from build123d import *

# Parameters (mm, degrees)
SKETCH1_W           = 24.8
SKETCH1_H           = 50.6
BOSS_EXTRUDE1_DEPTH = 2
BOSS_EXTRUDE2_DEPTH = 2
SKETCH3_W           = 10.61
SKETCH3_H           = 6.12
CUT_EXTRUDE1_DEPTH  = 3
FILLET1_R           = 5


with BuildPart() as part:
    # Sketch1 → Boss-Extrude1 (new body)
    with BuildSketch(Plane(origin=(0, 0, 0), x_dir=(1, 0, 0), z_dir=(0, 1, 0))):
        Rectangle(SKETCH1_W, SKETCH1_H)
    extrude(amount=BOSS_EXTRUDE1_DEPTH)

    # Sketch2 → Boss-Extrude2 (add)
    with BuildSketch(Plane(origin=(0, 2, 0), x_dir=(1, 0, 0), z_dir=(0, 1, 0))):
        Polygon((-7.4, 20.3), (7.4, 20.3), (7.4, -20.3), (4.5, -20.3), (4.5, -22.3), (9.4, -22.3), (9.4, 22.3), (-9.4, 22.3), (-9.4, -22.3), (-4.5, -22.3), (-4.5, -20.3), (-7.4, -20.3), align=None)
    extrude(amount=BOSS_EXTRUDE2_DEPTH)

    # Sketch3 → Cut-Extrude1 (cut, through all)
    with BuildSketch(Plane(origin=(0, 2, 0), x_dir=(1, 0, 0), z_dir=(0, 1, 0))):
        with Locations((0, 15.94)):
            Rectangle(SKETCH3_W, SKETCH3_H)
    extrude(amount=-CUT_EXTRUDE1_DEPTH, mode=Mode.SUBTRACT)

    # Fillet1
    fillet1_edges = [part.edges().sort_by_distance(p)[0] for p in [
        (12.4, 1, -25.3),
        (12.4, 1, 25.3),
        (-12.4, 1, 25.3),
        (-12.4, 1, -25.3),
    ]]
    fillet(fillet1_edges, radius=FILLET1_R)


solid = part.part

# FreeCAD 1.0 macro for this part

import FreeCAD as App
import Part
import Sketcher
from FreeCAD import Vector
Q = App.Units.Quantity


def edges_at(feature, points):
    """Names of the edges that pass closest to the given points."""
    edges = feature.Shape.Edges
    near = lambda p: min(range(len(edges)), key=lambda i: edges[i].distToShape(Part.Vertex(*p))[0])
    return sorted({f"Edge{near(p) + 1}" for p in points})


def add_polygon(sketch, points):
    """Adds a closed chain of lines whose ends are joined by coincident constraints."""
    first, n = sketch.GeometryCount, len(points)
    for a, b in zip(points, points[1:] + points[:1]):
        sketch.addGeometry(Part.LineSegment(App.Vector(*a, 0), App.Vector(*b, 0)), False)
    for i in range(n):
        sketch.addConstraint(Sketcher.Constraint("Coincident", first + i, 2, first + (i + 1) % n, 1))

doc = App.newDocument("Part")
body = doc.addObject("PartDesign::Body", "Body")

# Sketch on XZ plane
sketch1 = body.newObject("Sketcher::SketchObject", "Sketch")
sketch1.AttachmentSupport = (doc.getObject("XZ_Plane"), [""])
sketch1.MapMode = "FlatFace"
add_polygon(sketch1, [(-12, -25), (-12, 25), (12, 25), (12, -25)])  # lines 0-3
sketch1.addConstraint(Sketcher.Constraint("Vertical", 0))
sketch1.addConstraint(Sketcher.Constraint("Horizontal", 1))
sketch1.addConstraint(Sketcher.Constraint("Vertical", 2))
sketch1.addConstraint(Sketcher.Constraint("Horizontal", 3))
sketch1.addConstraint(Sketcher.Constraint("Symmetric", 0, 2, 2, 2, -1, 1))
sketch1.addConstraint(Sketcher.Constraint("DistanceX", 1, 1, 1, 2, Q("24.8 mm")))
sketch1.addConstraint(Sketcher.Constraint("DistanceY", 0, 1, 0, 2, Q("50.6 mm")))
pad1 = body.newObject("PartDesign::Pad", "Pad")
pad1.Profile = sketch1
pad1.Length = 2
pad1.Reversed = True

# Sketch on XZ plane
sketch2 = body.newObject("Sketcher::SketchObject", "Sketch001")
sketch2.AttachmentSupport = (doc.getObject("XZ_Plane"), [""])
sketch2.MapMode = "FlatFace"
sketch2.AttachmentOffset = App.Placement(Vector(0, 0, -2), App.Rotation())
add_polygon(sketch2, [(-7.4, -20.3), (7.4, -20.3), (7.4, 20.3), (4.5, 20.3), (4.5, 22.3), (9.4, 22.3), (9.4, -22.3), (-9.4, -22.3), (-9.4, 22.3), (-4.5, 22.3), (-4.5, 20.3), (-7.4, 20.3)])  # lines 0-11
sketch2.addConstraint(Sketcher.Constraint("Horizontal", 0))
sketch2.addConstraint(Sketcher.Constraint("Vertical", 1))
sketch2.addConstraint(Sketcher.Constraint("Horizontal", 2))
sketch2.addConstraint(Sketcher.Constraint("Vertical", 3))
sketch2.addConstraint(Sketcher.Constraint("Horizontal", 4))
sketch2.addConstraint(Sketcher.Constraint("Vertical", 5))
sketch2.addConstraint(Sketcher.Constraint("Horizontal", 6))
sketch2.addConstraint(Sketcher.Constraint("Vertical", 7))
sketch2.addConstraint(Sketcher.Constraint("Horizontal", 8))
sketch2.addConstraint(Sketcher.Constraint("Vertical", 9))
sketch2.addConstraint(Sketcher.Constraint("Horizontal", 10))
sketch2.addConstraint(Sketcher.Constraint("Vertical", 11))
sketch2.addConstraint(Sketcher.Constraint("Symmetric", 4, 2, 6, 2, -1, 1))
sketch2.addConstraint(Sketcher.Constraint("Symmetric", 0, 2, 10, 2, -1, 1))
sketch2.addConstraint(Sketcher.Constraint("Symmetric", 3, 2, 8, 2, -2))
sketch2.addConstraint(Sketcher.Constraint("Horizontal", 2, 2, 9, 2))
sketch2.addConstraint(Sketcher.Constraint("DistanceY", 3, 1, 3, 2, Q("2 mm")))
sketch2.addConstraint(Sketcher.Constraint("DistanceX", 0, 1, 0, 2, Q("14.8 mm")))
sketch2.addConstraint(Sketcher.Constraint("DistanceX", 2, 2, 2, 1, Q("2.9 mm")))
sketch2.addConstraint(Sketcher.Constraint("DistanceX", 4, 1, 4, 2, Q("4.9 mm")))
sketch2.addConstraint(Sketcher.Constraint("DistanceY", 1, 1, 1, 2, Q("40.6 mm")))
pad2 = body.newObject("PartDesign::Pad", "Pad001")
pad2.Profile = sketch2
pad2.Length = 2
pad2.Reversed = True

# Sketch on XZ plane
sketch3 = body.newObject("Sketcher::SketchObject", "Sketch002")
sketch3.AttachmentSupport = (doc.getObject("XZ_Plane"), [""])
sketch3.MapMode = "FlatFace"
sketch3.AttachmentOffset = App.Placement(Vector(0, 0, -2), App.Rotation())
add_polygon(sketch3, [(-5, -19), (-5, -13), (5, -13), (5, -19)])  # lines 0-3
sketch3.addConstraint(Sketcher.Constraint("Vertical", 0))
sketch3.addConstraint(Sketcher.Constraint("Horizontal", 1))
sketch3.addConstraint(Sketcher.Constraint("Vertical", 2))
sketch3.addConstraint(Sketcher.Constraint("Horizontal", 3))
sketch3.addConstraint(Sketcher.Constraint("DistanceY", 2, 2, -1, 1, Q("19 mm")))
sketch3.addConstraint(Sketcher.Constraint("DistanceX", 1, 1, 1, 2, Q("10.61 mm")))
sketch3.addConstraint(Sketcher.Constraint("DistanceY", 0, 1, 0, 2, Q("6.12 mm")))
sketch3.addConstraint(Sketcher.Constraint("DistanceX", 0, 2, -1, 1, Q("5.305 mm")))
pocket1 = body.newObject("PartDesign::Pocket", "Pocket")
pocket1.Profile = sketch3
pocket1.Type = "ThroughAll"
pocket1.Reversed = True
doc.recompute()

fillet = body.newObject("PartDesign::Fillet", "Fillet")
fillet.Base = (pocket1, edges_at(pocket1, [
    (12.4, 1, -25.3),
    (12.4, 1, 25.3),
    (-12.4, 1, 25.3),
    (-12.4, 1, -25.3),
]))
fillet.Radius = 5

doc.recompute()
